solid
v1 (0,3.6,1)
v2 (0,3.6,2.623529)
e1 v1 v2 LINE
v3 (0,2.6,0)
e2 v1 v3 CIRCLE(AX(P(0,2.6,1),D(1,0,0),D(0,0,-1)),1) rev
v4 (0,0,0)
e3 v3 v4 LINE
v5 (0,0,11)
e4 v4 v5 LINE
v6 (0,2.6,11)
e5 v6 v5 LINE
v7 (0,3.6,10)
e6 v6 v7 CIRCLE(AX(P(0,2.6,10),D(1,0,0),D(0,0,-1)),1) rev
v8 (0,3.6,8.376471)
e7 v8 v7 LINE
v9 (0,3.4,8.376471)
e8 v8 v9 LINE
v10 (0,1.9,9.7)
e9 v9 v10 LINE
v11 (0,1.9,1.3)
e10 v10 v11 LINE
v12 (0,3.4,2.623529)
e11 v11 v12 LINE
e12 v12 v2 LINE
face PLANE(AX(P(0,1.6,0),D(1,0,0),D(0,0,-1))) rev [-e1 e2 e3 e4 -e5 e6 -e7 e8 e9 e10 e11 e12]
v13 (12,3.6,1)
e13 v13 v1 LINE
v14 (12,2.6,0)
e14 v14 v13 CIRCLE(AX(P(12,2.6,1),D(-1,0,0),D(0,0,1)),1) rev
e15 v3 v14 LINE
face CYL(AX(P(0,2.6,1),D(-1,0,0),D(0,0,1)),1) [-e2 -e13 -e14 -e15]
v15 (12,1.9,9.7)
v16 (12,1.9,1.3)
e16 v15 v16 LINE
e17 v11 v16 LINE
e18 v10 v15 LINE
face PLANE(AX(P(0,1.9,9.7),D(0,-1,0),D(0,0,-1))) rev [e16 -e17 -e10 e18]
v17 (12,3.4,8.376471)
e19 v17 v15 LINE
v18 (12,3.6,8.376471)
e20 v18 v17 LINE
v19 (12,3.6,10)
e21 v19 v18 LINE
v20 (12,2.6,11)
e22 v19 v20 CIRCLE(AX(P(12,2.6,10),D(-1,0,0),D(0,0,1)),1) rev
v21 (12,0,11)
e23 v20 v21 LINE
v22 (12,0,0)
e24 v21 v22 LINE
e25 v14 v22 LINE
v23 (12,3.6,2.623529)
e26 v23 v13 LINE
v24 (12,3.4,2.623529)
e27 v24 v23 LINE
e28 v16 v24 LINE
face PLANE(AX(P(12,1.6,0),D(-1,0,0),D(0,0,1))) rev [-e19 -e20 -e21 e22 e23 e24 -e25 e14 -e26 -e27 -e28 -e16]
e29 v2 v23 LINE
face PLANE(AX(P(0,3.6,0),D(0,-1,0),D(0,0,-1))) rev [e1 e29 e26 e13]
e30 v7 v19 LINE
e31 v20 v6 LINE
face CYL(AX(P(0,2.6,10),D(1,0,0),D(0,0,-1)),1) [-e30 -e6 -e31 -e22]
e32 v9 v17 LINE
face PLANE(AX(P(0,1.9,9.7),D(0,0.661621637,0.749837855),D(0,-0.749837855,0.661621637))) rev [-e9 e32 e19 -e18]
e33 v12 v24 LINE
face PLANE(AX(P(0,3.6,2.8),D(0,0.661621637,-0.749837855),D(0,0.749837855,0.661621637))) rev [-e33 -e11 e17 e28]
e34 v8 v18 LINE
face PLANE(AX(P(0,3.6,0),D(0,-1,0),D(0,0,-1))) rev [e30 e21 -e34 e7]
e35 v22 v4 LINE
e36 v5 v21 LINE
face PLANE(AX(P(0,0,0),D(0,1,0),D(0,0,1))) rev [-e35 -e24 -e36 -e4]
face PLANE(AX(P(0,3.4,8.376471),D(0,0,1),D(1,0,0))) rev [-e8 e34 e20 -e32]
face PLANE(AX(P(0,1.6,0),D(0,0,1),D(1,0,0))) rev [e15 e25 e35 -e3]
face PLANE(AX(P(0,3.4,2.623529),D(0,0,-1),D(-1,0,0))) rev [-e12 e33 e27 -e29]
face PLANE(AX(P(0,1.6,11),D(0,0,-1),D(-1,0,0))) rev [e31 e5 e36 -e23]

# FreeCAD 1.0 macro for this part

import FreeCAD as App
import Part
import Sketcher
Q = App.Units.Quantity


def edges_at(feature, points):
    """Names of the edges that pass closest to the given points."""
    edges = feature.Shape.Edges
    near = lambda p: min(range(len(edges)), key=lambda i: edges[i].distToShape(Part.Vertex(*p))[0])
    return sorted({f"Edge{near(p) + 1}" for p in points})

doc = App.newDocument("Part")
params = doc.addObject("Spreadsheet::Sheet", "Params")
for row, (alias, value) in enumerate([
    ("sketch1_width", "12 mm"),
    ("sketch1_height", "11 mm"),
    ("pad1_length", "1.6 mm"),
    ("sketch2_width", "12 mm"),
    ("sketch2_height", "11 mm"),
    ("pad2_length", "2 mm"),
    ("sketch3_height", "8.4 mm"),
    ("sketch3_height2", "5.4 mm"),
    ("sketch4_width", "0.2 mm"),
    ("fillet_radius", "1 mm"),
], start=1):
    params.set(f"A{row}", alias)
    params.set(f"B{row}", "=" + value)
    params.setAlias(f"B{row}", alias)

body = doc.addObject("PartDesign::Body", "Body")

sketch1 = doc.addObject("Sketcher::SketchObject", "Sketch")
body.addObject(sketch1)
sketch1.AttachmentSupport = (doc.XZ_Plane, [""])
sketch1.MapMode = "FlatFace"
sketch1.addGeometry([
    Part.LineSegment(App.Vector(0, 0, 0), App.Vector(0, 11, 0)),
    Part.LineSegment(App.Vector(0, 11, 0), App.Vector(12, 11, 0)),
    Part.LineSegment(App.Vector(12, 11, 0), App.Vector(12, 0, 0)),
    Part.LineSegment(App.Vector(12, 0, 0), App.Vector(0, 0, 0)),
], False)
sketch1.addConstraint([
    Sketcher.Constraint("Coincident", 0, 2, 1, 1),
    Sketcher.Constraint("Coincident", 1, 2, 2, 1),
    Sketcher.Constraint("Coincident", 2, 2, 3, 1),
    Sketcher.Constraint("Coincident", 3, 2, 0, 1),
    Sketcher.Constraint("Vertical", 0),
    Sketcher.Constraint("Horizontal", 1),
    Sketcher.Constraint("Vertical", 2),
    Sketcher.Constraint("Horizontal", 3),
    Sketcher.Constraint("Coincident", 3, 2, -1, 1),
    Sketcher.Constraint("DistanceX", 1, 1, 1, 2, Q("12 mm")),
    Sketcher.Constraint("DistanceY", 0, 1, 0, 2, Q("11 mm")),
])
sketch1.setExpression("Constraints[9]", "Params.sketch1_width")
sketch1.setExpression("Constraints[10]", "Params.sketch1_height")
pad1 = doc.addObject("PartDesign::Pad", "Pad")
body.addObject(pad1)
pad1.Profile = sketch1
pad1.setExpression("Length", "Params.pad1_length")
pad1.Reversed = True

sketch2 = doc.addObject("Sketcher::SketchObject", "Sketch001")
body.addObject(sketch2)
sketch2.AttachmentSupport = (doc.XZ_Plane, [""])
sketch2.MapMode = "FlatFace"
sketch2.AttachmentOffset = App.Placement(App.Vector(0, 0, -1.6), App.Rotation())
sketch2.addGeometry([
    Part.LineSegment(App.Vector(0, 0, 0), App.Vector(0, 11, 0)),
    Part.LineSegment(App.Vector(0, 11, 0), App.Vector(12, 11, 0)),
    Part.LineSegment(App.Vector(12, 11, 0), App.Vector(12, 0, 0)),
    Part.LineSegment(App.Vector(12, 0, 0), App.Vector(0, 0, 0)),
], False)
sketch2.addConstraint([
    Sketcher.Constraint("Coincident", 0, 2, 1, 1),
    Sketcher.Constraint("Coincident", 1, 2, 2, 1),
    Sketcher.Constraint("Coincident", 2, 2, 3, 1),
    Sketcher.Constraint("Coincident", 3, 2, 0, 1),
    Sketcher.Constraint("Vertical", 0),
    Sketcher.Constraint("Horizontal", 1),
    Sketcher.Constraint("Vertical", 2),
    Sketcher.Constraint("Horizontal", 3),
    Sketcher.Constraint("Coincident", 3, 2, -1, 1),
    Sketcher.Constraint("DistanceX", 1, 1, 1, 2, Q("12 mm")),
    Sketcher.Constraint("DistanceY", 0, 1, 0, 2, Q("11 mm")),
])
sketch2.setExpression("Constraints[9]", "Params.sketch2_width")
sketch2.setExpression("Constraints[10]", "Params.sketch2_height")
pad2 = doc.addObject("PartDesign::Pad", "Pad001")
body.addObject(pad2)
pad2.Profile = sketch2
pad2.setExpression("Length", "Params.pad2_length")
pad2.Reversed = True

sketch3 = doc.addObject("Sketcher::SketchObject", "Sketch002")
body.addObject(sketch3)
sketch3.AttachmentSupport = (doc.YZ_Plane, [""])
sketch3.MapMode = "FlatFace"
sketch3.AttachmentOffset = App.Placement(App.Vector(0, 0, 12), App.Rotation())
sketch3.addGeometry([
    Part.LineSegment(App.Vector(3.6, 8.2, 0), App.Vector(1.9, 9.7, 0)),
    Part.LineSegment(App.Vector(1.9, 9.7, 0), App.Vector(1.9, 1.3, 0)),
    Part.LineSegment(App.Vector(1.9, 1.3, 0), App.Vector(3.6, 2.8, 0)),
    Part.LineSegment(App.Vector(3.6, 2.8, 0), App.Vector(3.6, 8.2, 0)),
], False)
sketch3.addConstraint([
    Sketcher.Constraint("Coincident", 0, 2, 1, 1),
    Sketcher.Constraint("Coincident", 1, 2, 2, 1),
    Sketcher.Constraint("Coincident", 2, 2, 3, 1),
    Sketcher.Constraint("Coincident", 3, 2, 0, 1),
    Sketcher.Constraint("Vertical", 1),
    Sketcher.Constraint("Vertical", 3),
    Sketcher.Constraint("Equal", 0, 2),
    Sketcher.Constraint("DistanceY", 1, 2, 1, 1, Q("8.4 mm")),
    Sketcher.Constraint("DistanceY", 3, 1, 3, 2, Q("5.4 mm")),
    Sketcher.Constraint("DistanceX", -1, 1, 0, 2, Q("1.9 mm")),
    Sketcher.Constraint("DistanceY", -1, 1, 0, 2, Q("9.7 mm")),
    Sketcher.Constraint("DistanceX", -1, 1, 2, 2, Q("3.6 mm")),
])
sketch3.setExpression("Constraints[7]", "Params.sketch3_height")
sketch3.setExpression("Constraints[8]", "Params.sketch3_height2")
pocket1 = doc.addObject("PartDesign::Pocket", "Pocket")
body.addObject(pocket1)
pocket1.Profile = sketch3
pocket1.Type = "ThroughAll"

sketch4 = doc.addObject("Sketcher::SketchObject", "Sketch003")
body.addObject(sketch4)
sketch4.AttachmentSupport = (doc.YZ_Plane, [""])
sketch4.MapMode = "FlatFace"
sketch4.AttachmentOffset = App.Placement(App.Vector(0, 0, 12), App.Rotation())
sketch4.addGeometry([
    Part.LineSegment(App.Vector(3.6, 8.376471, 0), App.Vector(3.4, 8.376471, 0)),
    Part.LineSegment(App.Vector(3.4, 8.376471, 0), App.Vector(3.6, 8.2, 0)),
    Part.LineSegment(App.Vector(3.6, 8.2, 0), App.Vector(3.6, 8.376471, 0)),
    Part.LineSegment(App.Vector(3.4, 2.623529, 0), App.Vector(3.6, 2.623529, 0)),
    Part.LineSegment(App.Vector(3.6, 2.623529, 0), App.Vector(3.6, 2.8, 0)),
    Part.LineSegment(App.Vector(3.6, 2.8, 0), App.Vector(3.4, 2.623529, 0)),
], False)
sketch4.addConstraint([
    Sketcher.Constraint("Coincident", 0, 2, 1, 1),
    Sketcher.Constraint("Coincident", 1, 2, 2, 1),
    Sketcher.Constraint("Coincident", 2, 2, 0, 1),
    Sketcher.Constraint("Coincident", 3, 2, 4, 1),
    Sketcher.Constraint("Coincident", 4, 2, 5, 1),
    Sketcher.Constraint("Coincident", 5, 2, 3, 1),
    Sketcher.Constraint("Horizontal", 0),
    Sketcher.Constraint("Vertical", 2),
    Sketcher.Constraint("Horizontal", 3),
    Sketcher.Constraint("Vertical", 4),
    Sketcher.Constraint("Vertical", 2, 2, 3, 2),
    Sketcher.Constraint("Vertical", 0, 2, 5, 2),
    Sketcher.Constraint("Equal", 2, 4),
    Sketcher.Constraint("DistanceX", 0, 2, 0, 1, Q("0.2 mm")),
    Sketcher.Constraint("DistanceX", -1, 1, 0, 2, Q("3.4 mm")),
    Sketcher.Constraint("DistanceY", -1, 1, 1, 2, Q("8.2 mm")),
    Sketcher.Constraint("DistanceY", -1, 1, 4, 2, Q("2.8 mm")),
    Sketcher.Constraint("DistanceY", 2, 1, 2, 2, Q("0.176471 mm")),
])
sketch4.setExpression("Constraints[13]", "Params.sketch4_width")
pocket2 = doc.addObject("PartDesign::Pocket", "Pocket001")
body.addObject(pocket2)
pocket2.Profile = sketch4
pocket2.Type = "ThroughAll"
doc.recompute()

fillet = doc.addObject("PartDesign::Fillet", "Fillet")
body.addObject(fillet)
fillet.Base = (pocket2, edges_at(pocket2, [(6, 3.6, 11), (6, 3.6, 0)]))
fillet.setExpression("Radius", "Params.fillet_radius")

doc.recompute()
